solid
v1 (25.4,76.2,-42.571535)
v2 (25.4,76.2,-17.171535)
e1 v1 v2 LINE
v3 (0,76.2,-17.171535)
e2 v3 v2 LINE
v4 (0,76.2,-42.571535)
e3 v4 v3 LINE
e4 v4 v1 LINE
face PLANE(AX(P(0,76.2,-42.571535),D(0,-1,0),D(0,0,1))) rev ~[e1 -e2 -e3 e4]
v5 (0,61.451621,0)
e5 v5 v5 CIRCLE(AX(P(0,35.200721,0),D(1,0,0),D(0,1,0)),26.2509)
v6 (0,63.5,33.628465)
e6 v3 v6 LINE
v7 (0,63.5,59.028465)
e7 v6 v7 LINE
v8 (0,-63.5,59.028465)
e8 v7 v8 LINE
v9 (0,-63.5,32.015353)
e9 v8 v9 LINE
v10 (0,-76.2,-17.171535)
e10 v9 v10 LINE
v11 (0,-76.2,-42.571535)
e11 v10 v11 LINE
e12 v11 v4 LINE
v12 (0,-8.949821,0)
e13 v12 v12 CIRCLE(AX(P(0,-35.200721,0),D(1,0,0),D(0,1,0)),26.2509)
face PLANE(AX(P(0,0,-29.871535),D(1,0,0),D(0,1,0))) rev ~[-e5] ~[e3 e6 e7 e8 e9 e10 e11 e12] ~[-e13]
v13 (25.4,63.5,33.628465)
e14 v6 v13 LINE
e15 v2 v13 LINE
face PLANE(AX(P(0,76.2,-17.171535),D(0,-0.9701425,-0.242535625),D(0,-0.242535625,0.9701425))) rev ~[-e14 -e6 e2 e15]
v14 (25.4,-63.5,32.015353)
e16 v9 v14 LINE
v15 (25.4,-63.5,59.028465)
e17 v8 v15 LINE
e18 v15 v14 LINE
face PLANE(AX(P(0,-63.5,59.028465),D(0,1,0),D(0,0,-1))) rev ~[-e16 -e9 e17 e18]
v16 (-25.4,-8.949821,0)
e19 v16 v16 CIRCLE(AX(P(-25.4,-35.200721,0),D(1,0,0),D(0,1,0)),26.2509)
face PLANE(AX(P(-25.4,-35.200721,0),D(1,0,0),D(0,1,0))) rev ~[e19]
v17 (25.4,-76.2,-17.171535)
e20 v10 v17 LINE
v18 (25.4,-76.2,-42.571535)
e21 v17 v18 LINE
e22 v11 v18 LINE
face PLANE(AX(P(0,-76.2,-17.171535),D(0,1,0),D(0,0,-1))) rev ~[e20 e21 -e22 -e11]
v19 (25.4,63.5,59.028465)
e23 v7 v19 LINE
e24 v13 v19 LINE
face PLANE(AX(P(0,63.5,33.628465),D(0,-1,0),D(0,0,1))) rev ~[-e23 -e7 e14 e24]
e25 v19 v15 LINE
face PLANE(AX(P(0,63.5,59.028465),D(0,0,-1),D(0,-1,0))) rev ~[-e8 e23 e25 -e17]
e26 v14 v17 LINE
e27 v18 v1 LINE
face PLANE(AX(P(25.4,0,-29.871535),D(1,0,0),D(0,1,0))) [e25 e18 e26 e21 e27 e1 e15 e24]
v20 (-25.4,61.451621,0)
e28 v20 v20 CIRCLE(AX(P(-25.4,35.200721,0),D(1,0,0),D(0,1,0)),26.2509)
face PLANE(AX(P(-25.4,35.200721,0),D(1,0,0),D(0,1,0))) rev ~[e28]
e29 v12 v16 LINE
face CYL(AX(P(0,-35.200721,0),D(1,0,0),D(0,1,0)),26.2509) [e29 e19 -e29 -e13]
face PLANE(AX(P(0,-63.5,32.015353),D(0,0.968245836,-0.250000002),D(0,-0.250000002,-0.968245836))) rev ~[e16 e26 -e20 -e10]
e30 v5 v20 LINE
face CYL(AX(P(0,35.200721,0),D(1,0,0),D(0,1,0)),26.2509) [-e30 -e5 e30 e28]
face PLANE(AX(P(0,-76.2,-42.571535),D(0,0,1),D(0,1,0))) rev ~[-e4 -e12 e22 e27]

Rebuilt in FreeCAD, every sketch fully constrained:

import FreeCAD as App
import Part
import Sketcher

V = App.Vector
Q = App.Units.Quantity


def add_polygon(sketch, points):
    """Adds a closed chain of lines whose ends are joined by coincident constraints."""
    first, n = sketch.GeometryCount, len(points)
    for a, b in zip(points, points[1:] + points[:1]):
        sketch.addGeometry(Part.LineSegment(App.Vector(*a, 0), App.Vector(*b, 0)), False)
    for i in range(n):
        sketch.addConstraint(Sketcher.Constraint("Coincident", first + i, 2, first + (i + 1) % n, 1))

doc = App.newDocument("Part")
body = doc.addObject("PartDesign::Body", "Body")

# Sketch on YZ plane
sketch1 = body.newObject("Sketcher::SketchObject", "Sketch")
sketch1.AttachmentSupport = (doc.getObject("YZ_Plane"), [""])
sketch1.MapMode = "FlatFace"
add_polygon(sketch1, [(-76, -43), (76, -43), (76, -17), (64, 34), (64, 59), (-64, 59), (-64, 32), (-76, -17)])  # lines 0-7
sketch1.addConstraint([
    Sketcher.Constraint("Horizontal", 0),
    Sketcher.Constraint("Vertical", 1),
    Sketcher.Constraint("Vertical", 3),
    Sketcher.Constraint("Horizontal", 4),
    Sketcher.Constraint("Vertical", 5),
    Sketcher.Constraint("Vertical", 7),
    Sketcher.Constraint("Symmetric", 1, 2, 6, 2, -2),
    Sketcher.Constraint("Equal", 1, 3),
    Sketcher.Constraint("DistanceX", 0, 1, 0, 2, Q("6 in")),
    Sketcher.Constraint("DistanceX", 4, 2, 4, 1, Q("5 in")),
    Sketcher.Constraint("DistanceY", 1, 1, 1, 2, Q("1 in")),
    Sketcher.Constraint("Distance", 6, Q("2 in")),
    Sketcher.Constraint("DistanceY", 1, 2, 2, 2, Q("2 in")),
    Sketcher.Constraint("DistanceX", -1, 1, 2, 2, Q("2.5 in")),
    Sketcher.Constraint("DistanceY", 0, 2, -1, 1, 42.571535),
])
pad1 = body.newObject("PartDesign::Pad", "Pad")
pad1.Profile = sketch1
pad1.Length = Q("1 in")

# Sketch on YZ plane
sketch2 = body.newObject("Sketcher::SketchObject", "Sketch001")
sketch2.AttachmentSupport = (doc.getObject("YZ_Plane"), [""])
sketch2.MapMode = "FlatFace"
sketch2.addGeometry([
    Part.Circle(V(35, 0, 0), V(0, 0, 1), 26),
    Part.Circle(V(-35, 0, 0), V(0, 0, 1), 26),
], False)
sketch2.addConstraint([
    Sketcher.Constraint("Equal", 0, 1),
    Sketcher.Constraint("Symmetric", 0, 3, 1, 3, -1, 1),
    Sketcher.Constraint("PointOnObject", 0, 3, -1),
    Sketcher.Constraint("Diameter", 0, Q("2.067 in")),
    Sketcher.Constraint("DistanceX", -1, 1, 0, 3, 35.200721),
])
pad2 = body.newObject("PartDesign::Pad", "Pad001")
pad2.Profile = sketch2
pad2.Length = Q("1 in")
pad2.Reversed = True

doc.recompute()
